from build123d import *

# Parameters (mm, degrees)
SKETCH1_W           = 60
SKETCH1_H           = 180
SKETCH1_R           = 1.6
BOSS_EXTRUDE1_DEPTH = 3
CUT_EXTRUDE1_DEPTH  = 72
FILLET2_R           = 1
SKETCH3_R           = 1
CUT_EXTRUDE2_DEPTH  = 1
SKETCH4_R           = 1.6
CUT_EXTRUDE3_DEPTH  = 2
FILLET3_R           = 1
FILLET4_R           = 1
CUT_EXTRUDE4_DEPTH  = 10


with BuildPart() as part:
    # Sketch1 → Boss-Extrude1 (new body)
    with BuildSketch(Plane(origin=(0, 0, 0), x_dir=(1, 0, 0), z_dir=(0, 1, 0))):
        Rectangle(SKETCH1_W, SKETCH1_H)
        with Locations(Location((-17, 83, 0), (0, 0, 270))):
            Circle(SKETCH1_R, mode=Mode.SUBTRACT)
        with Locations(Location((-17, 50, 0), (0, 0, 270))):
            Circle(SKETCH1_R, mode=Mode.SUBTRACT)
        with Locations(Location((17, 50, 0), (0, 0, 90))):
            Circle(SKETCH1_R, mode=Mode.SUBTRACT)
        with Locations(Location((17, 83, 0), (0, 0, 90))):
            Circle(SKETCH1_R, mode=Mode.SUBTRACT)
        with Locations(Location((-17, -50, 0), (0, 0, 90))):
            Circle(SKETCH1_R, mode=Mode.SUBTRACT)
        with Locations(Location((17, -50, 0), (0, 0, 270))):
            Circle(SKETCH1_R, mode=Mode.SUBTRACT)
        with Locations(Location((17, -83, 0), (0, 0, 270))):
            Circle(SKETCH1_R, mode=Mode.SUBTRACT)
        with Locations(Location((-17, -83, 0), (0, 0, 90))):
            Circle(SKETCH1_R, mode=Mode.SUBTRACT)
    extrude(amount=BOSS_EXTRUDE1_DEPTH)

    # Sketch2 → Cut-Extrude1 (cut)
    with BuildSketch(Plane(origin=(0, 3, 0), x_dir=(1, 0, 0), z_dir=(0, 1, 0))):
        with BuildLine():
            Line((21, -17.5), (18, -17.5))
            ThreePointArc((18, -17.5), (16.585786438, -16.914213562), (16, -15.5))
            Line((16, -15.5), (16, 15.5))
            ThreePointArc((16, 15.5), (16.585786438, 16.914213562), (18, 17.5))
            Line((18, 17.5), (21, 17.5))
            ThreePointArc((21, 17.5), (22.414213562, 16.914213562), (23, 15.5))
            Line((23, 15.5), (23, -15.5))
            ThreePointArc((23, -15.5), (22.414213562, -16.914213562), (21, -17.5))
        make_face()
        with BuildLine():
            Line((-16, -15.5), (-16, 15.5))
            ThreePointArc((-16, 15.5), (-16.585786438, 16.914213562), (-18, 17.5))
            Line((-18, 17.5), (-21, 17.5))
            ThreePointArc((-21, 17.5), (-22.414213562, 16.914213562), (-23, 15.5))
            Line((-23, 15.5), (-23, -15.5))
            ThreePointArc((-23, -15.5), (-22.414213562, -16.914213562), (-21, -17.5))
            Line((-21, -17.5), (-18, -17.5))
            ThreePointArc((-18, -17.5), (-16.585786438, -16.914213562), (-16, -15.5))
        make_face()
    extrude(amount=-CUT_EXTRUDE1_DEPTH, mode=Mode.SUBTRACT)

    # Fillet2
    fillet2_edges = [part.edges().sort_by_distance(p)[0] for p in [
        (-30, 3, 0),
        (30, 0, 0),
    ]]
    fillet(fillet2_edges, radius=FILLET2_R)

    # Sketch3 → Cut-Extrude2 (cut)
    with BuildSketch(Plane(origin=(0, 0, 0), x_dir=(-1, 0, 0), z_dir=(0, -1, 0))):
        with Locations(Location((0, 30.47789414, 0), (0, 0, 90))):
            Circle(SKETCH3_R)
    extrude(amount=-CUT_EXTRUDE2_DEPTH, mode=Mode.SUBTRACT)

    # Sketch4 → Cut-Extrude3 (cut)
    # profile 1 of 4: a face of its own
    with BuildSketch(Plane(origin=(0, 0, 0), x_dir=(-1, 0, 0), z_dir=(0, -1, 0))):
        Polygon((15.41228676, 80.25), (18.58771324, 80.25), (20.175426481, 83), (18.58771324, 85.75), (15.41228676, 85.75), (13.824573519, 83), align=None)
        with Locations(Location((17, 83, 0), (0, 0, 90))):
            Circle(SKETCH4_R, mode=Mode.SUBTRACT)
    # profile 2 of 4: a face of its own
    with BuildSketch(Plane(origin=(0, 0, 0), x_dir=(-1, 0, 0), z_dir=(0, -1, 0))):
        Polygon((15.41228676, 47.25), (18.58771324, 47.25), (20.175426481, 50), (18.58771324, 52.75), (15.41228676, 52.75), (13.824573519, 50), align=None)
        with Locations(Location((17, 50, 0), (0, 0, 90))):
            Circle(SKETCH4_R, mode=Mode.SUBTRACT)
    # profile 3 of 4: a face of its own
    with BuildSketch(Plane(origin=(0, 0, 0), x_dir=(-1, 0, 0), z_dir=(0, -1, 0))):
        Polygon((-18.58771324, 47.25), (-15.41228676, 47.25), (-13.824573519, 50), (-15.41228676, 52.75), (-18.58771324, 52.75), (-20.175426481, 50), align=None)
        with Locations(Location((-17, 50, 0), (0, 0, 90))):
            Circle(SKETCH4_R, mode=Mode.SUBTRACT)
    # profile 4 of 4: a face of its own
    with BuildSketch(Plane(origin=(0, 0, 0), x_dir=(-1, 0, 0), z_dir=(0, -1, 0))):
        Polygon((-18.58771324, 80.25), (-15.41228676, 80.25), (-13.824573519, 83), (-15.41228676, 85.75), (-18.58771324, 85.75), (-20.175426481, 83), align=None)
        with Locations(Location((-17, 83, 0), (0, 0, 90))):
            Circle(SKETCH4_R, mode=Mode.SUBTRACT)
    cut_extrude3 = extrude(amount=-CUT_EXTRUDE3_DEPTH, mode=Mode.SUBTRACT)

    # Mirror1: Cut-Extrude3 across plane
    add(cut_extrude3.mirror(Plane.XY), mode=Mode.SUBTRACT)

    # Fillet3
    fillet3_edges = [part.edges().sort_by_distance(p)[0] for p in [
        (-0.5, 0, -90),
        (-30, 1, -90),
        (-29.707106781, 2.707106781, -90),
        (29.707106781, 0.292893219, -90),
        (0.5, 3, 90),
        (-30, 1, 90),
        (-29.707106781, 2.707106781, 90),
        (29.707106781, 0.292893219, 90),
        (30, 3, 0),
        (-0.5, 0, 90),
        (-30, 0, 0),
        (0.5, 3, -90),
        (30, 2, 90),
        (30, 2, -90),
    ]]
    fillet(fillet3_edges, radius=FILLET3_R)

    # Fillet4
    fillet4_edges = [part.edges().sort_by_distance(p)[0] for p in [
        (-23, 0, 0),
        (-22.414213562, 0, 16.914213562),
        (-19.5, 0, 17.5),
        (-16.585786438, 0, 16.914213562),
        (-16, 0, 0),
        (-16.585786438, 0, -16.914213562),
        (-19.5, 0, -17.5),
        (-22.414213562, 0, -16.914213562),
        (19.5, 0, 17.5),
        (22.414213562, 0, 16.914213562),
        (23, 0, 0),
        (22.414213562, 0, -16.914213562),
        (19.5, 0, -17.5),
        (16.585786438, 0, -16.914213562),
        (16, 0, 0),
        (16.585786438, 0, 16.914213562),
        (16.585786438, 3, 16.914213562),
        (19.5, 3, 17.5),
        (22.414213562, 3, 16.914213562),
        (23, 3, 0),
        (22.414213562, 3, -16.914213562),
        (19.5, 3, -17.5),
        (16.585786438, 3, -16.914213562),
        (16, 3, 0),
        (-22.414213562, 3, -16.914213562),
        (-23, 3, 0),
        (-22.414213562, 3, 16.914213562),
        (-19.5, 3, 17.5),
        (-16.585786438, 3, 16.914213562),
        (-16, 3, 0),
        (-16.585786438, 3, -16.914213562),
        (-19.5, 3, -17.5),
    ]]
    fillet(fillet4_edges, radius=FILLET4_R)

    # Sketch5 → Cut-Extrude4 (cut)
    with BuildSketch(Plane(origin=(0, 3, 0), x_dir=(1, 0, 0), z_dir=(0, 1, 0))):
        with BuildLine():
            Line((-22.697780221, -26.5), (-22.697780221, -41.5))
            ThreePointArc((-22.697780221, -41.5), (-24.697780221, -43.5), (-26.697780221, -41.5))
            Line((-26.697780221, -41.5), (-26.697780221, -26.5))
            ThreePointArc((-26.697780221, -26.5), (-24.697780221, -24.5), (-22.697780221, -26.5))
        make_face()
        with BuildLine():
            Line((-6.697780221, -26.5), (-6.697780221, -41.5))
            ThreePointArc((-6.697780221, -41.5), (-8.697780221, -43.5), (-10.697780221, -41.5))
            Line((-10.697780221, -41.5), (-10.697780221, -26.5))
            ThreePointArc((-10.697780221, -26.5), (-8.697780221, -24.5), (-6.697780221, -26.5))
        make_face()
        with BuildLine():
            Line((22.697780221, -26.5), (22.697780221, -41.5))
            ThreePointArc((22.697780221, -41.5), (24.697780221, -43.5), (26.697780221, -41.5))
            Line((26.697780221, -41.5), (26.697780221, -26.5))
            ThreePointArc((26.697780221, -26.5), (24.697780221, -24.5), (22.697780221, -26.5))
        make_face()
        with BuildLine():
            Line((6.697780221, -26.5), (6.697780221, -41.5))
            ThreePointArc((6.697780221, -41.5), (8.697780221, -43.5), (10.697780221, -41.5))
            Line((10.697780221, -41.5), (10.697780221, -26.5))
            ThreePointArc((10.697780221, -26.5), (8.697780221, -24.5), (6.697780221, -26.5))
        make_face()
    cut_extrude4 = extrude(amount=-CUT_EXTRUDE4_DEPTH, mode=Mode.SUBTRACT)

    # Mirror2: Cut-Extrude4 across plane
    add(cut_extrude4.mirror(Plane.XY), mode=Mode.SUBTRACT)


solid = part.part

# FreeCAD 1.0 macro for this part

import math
import FreeCAD as App
import Part
import Sketcher

V = App.Vector
Q = App.Units.Quantity


def edges_at(feature, points):
    """Names of the edges that pass closest to the given points."""
    edges = feature.Shape.Edges
    near = lambda p: min(range(len(edges)), key=lambda i: edges[i].distToShape(Part.Vertex(*p))[0])
    return sorted({f"Edge{near(p) + 1}" for p in points})

doc = App.newDocument("Part")
params = doc.addObject("Spreadsheet::Sheet", "Params")
for row, (alias, value) in enumerate([
    ("sketch1_diameter", "3.2 mm"),
    ("sketch1_width", "60 mm"),
    ("sketch1_height", "180 mm"),
    ("pad1_length", "3 mm"),
    ("sketch2_radius", "2 mm"),
    ("sketch2_width", "3 mm"),
    ("sketch2_height", "31 mm"),
    ("pocket1_length", "72 mm"),
    ("fillet_radius", "1 mm"),
    ("sketch3_diameter", "2 mm"),
    ("pocket2_length", "1 mm"),
    ("sketch4_diameter", "3.2 mm"),
    ("pocket3_length", "2 mm"),
    ("fillet2_radius", "1 mm"),
    ("fillet3_radius", "1 mm"),
    ("sketch5_radius", "2 mm"),
    ("sketch5_height", "15 mm"),
    ("pocket4_length", "10 mm"),
], start=1):
    params.set(f"A{row}", alias)
    params.set(f"B{row}", "=" + value)
    params.setAlias(f"B{row}", alias)

body = doc.addObject("PartDesign::Body", "Body")

sketch1 = body.newObject("Sketcher::SketchObject", "Sketch")
sketch1.AttachmentSupport = (doc.getObject("XZ_Plane"), [""])
sketch1.MapMode = "FlatFace"
sketch1.addGeometry(Part.LineSegment(V(-30, -90, 0), V(-30, 90, 0)), False)
sketch1.addGeometry(Part.LineSegment(V(-30, 90, 0), V(30, 90, 0)), False)
sketch1.addGeometry(Part.LineSegment(V(30, 90, 0), V(30, -90, 0)), False)
sketch1.addGeometry(Part.LineSegment(V(30, -90, 0), V(-30, -90, 0)), False)
sketch1.addGeometry(Part.Circle(V(-17, 83, 0), V(0, 0, 1), 1.6), False)
sketch1.addGeometry(Part.Circle(V(-17, 50, 0), V(0, 0, 1), 1.6), False)
sketch1.addGeometry(Part.Circle(V(17, 83, 0), V(0, 0, 1), 1.6), False)
sketch1.addGeometry(Part.Circle(V(17, 50, 0), V(0, 0, 1), 1.6), False)
sketch1.addGeometry(Part.Circle(V(-17, -50, 0), V(0, 0, 1), 1.6), False)
sketch1.addGeometry(Part.Circle(V(-17, -83, 0), V(0, 0, 1), 1.6), False)
sketch1.addGeometry(Part.Circle(V(17, -50, 0), V(0, 0, 1), 1.6), False)
sketch1.addGeometry(Part.Circle(V(17, -83, 0), V(0, 0, 1), 1.6), False)
sketch1.addConstraint(Sketcher.Constraint("Coincident", 0, 2, 1, 1))
sketch1.addConstraint(Sketcher.Constraint("Coincident", 1, 2, 2, 1))
sketch1.addConstraint(Sketcher.Constraint("Coincident", 2, 2, 3, 1))
sketch1.addConstraint(Sketcher.Constraint("Coincident", 3, 2, 0, 1))
sketch1.addConstraint(Sketcher.Constraint("Vertical", 0))
sketch1.addConstraint(Sketcher.Constraint("Horizontal", 1))
sketch1.addConstraint(Sketcher.Constraint("Vertical", 2))
sketch1.addConstraint(Sketcher.Constraint("Horizontal", 3))
sketch1.addConstraint(Sketcher.Constraint("Equal", 4, 5))
sketch1.addConstraint(Sketcher.Constraint("Equal", 5, 6))
sketch1.addConstraint(Sketcher.Constraint("Equal", 6, 7))
sketch1.addConstraint(Sketcher.Constraint("Equal", 7, 8))
sketch1.addConstraint(Sketcher.Constraint("Equal", 8, 9))
sketch1.addConstraint(Sketcher.Constraint("Equal", 9, 10))
sketch1.addConstraint(Sketcher.Constraint("Equal", 10, 11))
sketch1.addConstraint(Sketcher.Constraint("Symmetric", 7, 3, 8, 3, -1, 1))
sketch1.addConstraint(Sketcher.Constraint("Symmetric", 6, 3, 9, 3, -1, 1))
sketch1.addConstraint(Sketcher.Constraint("Symmetric", 5, 3, 10, 3, -1, 1))
sketch1.addConstraint(Sketcher.Constraint("Symmetric", 4, 3, 11, 3, -1, 1))
sketch1.addConstraint(Sketcher.Constraint("Symmetric", 0, 2, 2, 2, -1, 1))
sketch1.addConstraint(Sketcher.Constraint("Symmetric", 4, 3, 6, 3, -2))
sketch1.addConstraint(Sketcher.Constraint("Symmetric", 5, 3, 7, 3, -2))
sketch1.addConstraint(Sketcher.Constraint("Vertical", 4, 3, 5, 3))
sketch1.addConstraint(Sketcher.Constraint("Diameter", 4, Q("3.2 mm")))
sketch1.addConstraint(Sketcher.Constraint("DistanceX", 1, 1, 1, 2, Q("60 mm")))
sketch1.addConstraint(Sketcher.Constraint("DistanceY", 0, 1, 0, 2, Q("180 mm")))
sketch1.addConstraint(Sketcher.Constraint("DistanceX", 4, 3, -1, 1, Q("17 mm")))
sketch1.addConstraint(Sketcher.Constraint("DistanceY", -1, 1, 4, 3, Q("83 mm")))
sketch1.addConstraint(Sketcher.Constraint("DistanceY", -1, 1, 5, 3, Q("50 mm")))
sketch1.setExpression("Constraints[23]", "Params.sketch1_diameter")
sketch1.setExpression("Constraints[24]", "Params.sketch1_width")
sketch1.setExpression("Constraints[25]", "Params.sketch1_height")
pad1 = body.newObject("PartDesign::Pad", "Pad")
pad1.Profile = sketch1
pad1.setExpression("Length", "Params.pad1_length")
pad1.Reversed = True

sketch2 = body.newObject("Sketcher::SketchObject", "Sketch001")
sketch2.AttachmentSupport = (doc.getObject("XZ_Plane"), [""])
sketch2.MapMode = "FlatFace"
sketch2.AttachmentOffset = App.Placement(V(0, 0, -3), App.Rotation())
sketch2.addGeometry(Part.LineSegment(V(18, 17.5, 0), V(21, 17.5, 0)), False)
sketch2.addGeometry(Part.ArcOfCircle(Part.Circle(V(21, 15.5, 0), V(0, 0, 1), 2), math.radians(0), math.radians(90)), False)
sketch2.addGeometry(Part.LineSegment(V(23, 15.5, 0), V(23, -15.5, 0)), False)
sketch2.addGeometry(Part.ArcOfCircle(Part.Circle(V(21, -15.5, 0), V(0, 0, 1), 2), math.radians(-90), math.radians(0)), False)
sketch2.addGeometry(Part.LineSegment(V(21, -17.5, 0), V(18, -17.5, 0)), False)
sketch2.addGeometry(Part.ArcOfCircle(Part.Circle(V(18, -15.5, 0), V(0, 0, 1), 2), math.radians(-180), math.radians(-90)), False)
sketch2.addGeometry(Part.LineSegment(V(16, -15.5, 0), V(16, 15.5, 0)), False)
sketch2.addGeometry(Part.ArcOfCircle(Part.Circle(V(18, 15.5, 0), V(0, 0, 1), 2), math.radians(90), math.radians(180)), False)
sketch2.addGeometry(Part.LineSegment(V(-16, 15.5, 0), V(-16, -15.5, 0)), False)
sketch2.addGeometry(Part.ArcOfCircle(Part.Circle(V(-18, -15.5, 0), V(0, 0, 1), 2), math.radians(-90), math.radians(0)), False)
sketch2.addGeometry(Part.LineSegment(V(-18, -17.5, 0), V(-21, -17.5, 0)), False)
sketch2.addGeometry(Part.ArcOfCircle(Part.Circle(V(-21, -15.5, 0), V(0, 0, 1), 2), math.radians(-180), math.radians(-90)), False)
sketch2.addGeometry(Part.LineSegment(V(-23, -15.5, 0), V(-23, 15.5, 0)), False)
sketch2.addGeometry(Part.ArcOfCircle(Part.Circle(V(-21, 15.5, 0), V(0, 0, 1), 2), math.radians(90), math.radians(180)), False)
sketch2.addGeometry(Part.LineSegment(V(-21, 17.5, 0), V(-18, 17.5, 0)), False)
sketch2.addGeometry(Part.ArcOfCircle(Part.Circle(V(-18, 15.5, 0), V(0, 0, 1), 2), math.radians(0), math.radians(90)), False)
sketch2.addConstraint(Sketcher.Constraint("Tangent", 0, 2, 1, 2))
sketch2.addConstraint(Sketcher.Constraint("Tangent", 1, 1, 2, 1))
sketch2.addConstraint(Sketcher.Constraint("Tangent", 2, 2, 3, 2))
sketch2.addConstraint(Sketcher.Constraint("Tangent", 3, 1, 4, 1))
sketch2.addConstraint(Sketcher.Constraint("Tangent", 4, 2, 5, 2))
sketch2.addConstraint(Sketcher.Constraint("Tangent", 5, 1, 6, 1))
sketch2.addConstraint(Sketcher.Constraint("Tangent", 6, 2, 7, 2))
sketch2.addConstraint(Sketcher.Constraint("Tangent", 7, 1, 0, 1))
sketch2.addConstraint(Sketcher.Constraint("Tangent", 8, 2, 9, 2))
sketch2.addConstraint(Sketcher.Constraint("Tangent", 9, 1, 10, 1))
sketch2.addConstraint(Sketcher.Constraint("Tangent", 10, 2, 11, 2))
sketch2.addConstraint(Sketcher.Constraint("Tangent", 11, 1, 12, 1))
sketch2.addConstraint(Sketcher.Constraint("Tangent", 12, 2, 13, 2))
sketch2.addConstraint(Sketcher.Constraint("Tangent", 13, 1, 14, 1))
sketch2.addConstraint(Sketcher.Constraint("Tangent", 14, 2, 15, 2))
sketch2.addConstraint(Sketcher.Constraint("Tangent", 15, 1, 8, 1))
sketch2.addConstraint(Sketcher.Constraint("Horizontal", 0))
sketch2.addConstraint(Sketcher.Constraint("Vertical", 2))
sketch2.addConstraint(Sketcher.Constraint("Horizontal", 4))
sketch2.addConstraint(Sketcher.Constraint("Vertical", 6))
sketch2.addConstraint(Sketcher.Constraint("Vertical", 8))
sketch2.addConstraint(Sketcher.Constraint("Horizontal", 10))
sketch2.addConstraint(Sketcher.Constraint("Vertical", 12))
sketch2.addConstraint(Sketcher.Constraint("Horizontal", 14))
sketch2.addConstraint(Sketcher.Constraint("Equal", 1, 3))
sketch2.addConstraint(Sketcher.Constraint("Equal", 3, 5))
sketch2.addConstraint(Sketcher.Constraint("Equal", 5, 7))
sketch2.addConstraint(Sketcher.Constraint("Equal", 7, 9))
sketch2.addConstraint(Sketcher.Constraint("Equal", 9, 11))
sketch2.addConstraint(Sketcher.Constraint("Equal", 11, 13))
sketch2.addConstraint(Sketcher.Constraint("Equal", 13, 15))
sketch2.addConstraint(Sketcher.Constraint("Symmetric", 7, 3, 9, 3, -1, 1))
sketch2.addConstraint(Sketcher.Constraint("Symmetric", 3, 3, 13, 3, -1, 1))
sketch2.addConstraint(Sketcher.Constraint("Horizontal", 5, 3, 9, 3))
sketch2.addConstraint(Sketcher.Constraint("Radius", 1, Q("2 mm")))
sketch2.addConstraint(Sketcher.Constraint("DistanceX", 0, 1, 0, 2, Q("3 mm")))
sketch2.addConstraint(Sketcher.Constraint("DistanceY", 2, 2, 2, 1, Q("31 mm")))
sketch2.addConstraint(Sketcher.Constraint("DistanceX", -1, 1, 1, 3, Q("21 mm")))
sketch2.setExpression("Constraints[34]", "Params.sketch2_radius")
sketch2.setExpression("Constraints[35]", "Params.sketch2_width")
sketch2.setExpression("Constraints[36]", "Params.sketch2_height")
pocket1 = body.newObject("PartDesign::Pocket", "Pocket")
pocket1.Profile = sketch2
pocket1.setExpression("Length", "Params.pocket1_length")
pocket1.Reversed = True
doc.recompute()

fillet = body.newObject("PartDesign::Fillet", "Fillet")
fillet.Base = (pocket1, edges_at(pocket1, [(-30, 3, 0), (30, 0, 0)]))
fillet.setExpression("Radius", "Params.fillet_radius")

sketch3 = body.newObject("Sketcher::SketchObject", "Sketch002")
sketch3.AttachmentSupport = (doc.getObject("XZ_Plane"), [""])
sketch3.MapMode = "FlatFace"
sketch3.addGeometry(Part.Circle(V(0, -30.477894, 0), V(0, 0, 1), 1), False)
sketch3.addConstraint(Sketcher.Constraint("PointOnObject", 0, 3, -2))
sketch3.addConstraint(Sketcher.Constraint("Diameter", 0, Q("2 mm")))
sketch3.addConstraint(Sketcher.Constraint("DistanceY", 0, 3, -1, 1, Q("30.477894 mm")))
sketch3.setExpression("Constraints[1]", "Params.sketch3_diameter")
pocket2 = body.newObject("PartDesign::Pocket", "Pocket001")
pocket2.Profile = sketch3
pocket2.setExpression("Length", "Params.pocket2_length")

sketch4 = body.newObject("Sketcher::SketchObject", "Sketch003")
sketch4.AttachmentSupport = (doc.getObject("XZ_Plane"), [""])
sketch4.MapMode = "FlatFace"
sketch4.addGeometry(Part.LineSegment(V(-15.412287, -80.25, 0), V(-18.587713, -80.25, 0)), False)
sketch4.addGeometry(Part.LineSegment(V(-18.587713, -80.25, 0), V(-20.175426, -83, 0)), False)
sketch4.addGeometry(Part.LineSegment(V(-20.175426, -83, 0), V(-18.587713, -85.75, 0)), False)
sketch4.addGeometry(Part.LineSegment(V(-18.587713, -85.75, 0), V(-15.412287, -85.75, 0)), False)
sketch4.addGeometry(Part.LineSegment(V(-15.412287, -85.75, 0), V(-13.824574, -83, 0)), False)
sketch4.addGeometry(Part.LineSegment(V(-13.824574, -83, 0), V(-15.412287, -80.25, 0)), False)
sketch4.addGeometry(Part.Circle(V(-17, -83, 0), V(0, 0, 1), 1.6), False)
sketch4.addGeometry(Part.LineSegment(V(-15.412287, -47.25, 0), V(-18.587713, -47.25, 0)), False)
sketch4.addGeometry(Part.LineSegment(V(-18.587713, -47.25, 0), V(-20.175426, -50, 0)), False)
sketch4.addGeometry(Part.LineSegment(V(-20.175426, -50, 0), V(-18.587713, -52.75, 0)), False)
sketch4.addGeometry(Part.LineSegment(V(-18.587713, -52.75, 0), V(-15.412287, -52.75, 0)), False)
sketch4.addGeometry(Part.LineSegment(V(-15.412287, -52.75, 0), V(-13.824574, -50, 0)), False)
sketch4.addGeometry(Part.LineSegment(V(-13.824574, -50, 0), V(-15.412287, -47.25, 0)), False)
sketch4.addGeometry(Part.Circle(V(-17, -50, 0), V(0, 0, 1), 1.6), False)
sketch4.addGeometry(Part.LineSegment(V(18.587713, -47.25, 0), V(15.412287, -47.25, 0)), False)
sketch4.addGeometry(Part.LineSegment(V(15.412287, -47.25, 0), V(13.824574, -50, 0)), False)
sketch4.addGeometry(Part.LineSegment(V(13.824574, -50, 0), V(15.412287, -52.75, 0)), False)
sketch4.addGeometry(Part.LineSegment(V(15.412287, -52.75, 0), V(18.587713, -52.75, 0)), False)
sketch4.addGeometry(Part.LineSegment(V(18.587713, -52.75, 0), V(20.175426, -50, 0)), False)
sketch4.addGeometry(Part.LineSegment(V(20.175426, -50, 0), V(18.587713, -47.25, 0)), False)
sketch4.addGeometry(Part.Circle(V(17, -50, 0), V(0, 0, 1), 1.6), False)
sketch4.addGeometry(Part.LineSegment(V(18.587713, -80.25, 0), V(15.412287, -80.25, 0)), False)
sketch4.addGeometry(Part.LineSegment(V(15.412287, -80.25, 0), V(13.824574, -83, 0)), False)
sketch4.addGeometry(Part.LineSegment(V(13.824574, -83, 0), V(15.412287, -85.75, 0)), False)
sketch4.addGeometry(Part.LineSegment(V(15.412287, -85.75, 0), V(18.587713, -85.75, 0)), False)
sketch4.addGeometry(Part.LineSegment(V(18.587713, -85.75, 0), V(20.175426, -83, 0)), False)
sketch4.addGeometry(Part.LineSegment(V(20.175426, -83, 0), V(18.587713, -80.25, 0)), False)
sketch4.addGeometry(Part.Circle(V(17, -83, 0), V(0, 0, 1), 1.6), False)
sketch4.addConstraint(Sketcher.Constraint("Coincident", 0, 2, 1, 1))
sketch4.addConstraint(Sketcher.Constraint("Coincident", 1, 2, 2, 1))
sketch4.addConstraint(Sketcher.Constraint("Coincident", 2, 2, 3, 1))
sketch4.addConstraint(Sketcher.Constraint("Coincident", 3, 2, 4, 1))
sketch4.addConstraint(Sketcher.Constraint("Coincident", 4, 2, 5, 1))
sketch4.addConstraint(Sketcher.Constraint("Coincident", 5, 2, 0, 1))
sketch4.addConstraint(Sketcher.Constraint("Coincident", 7, 2, 8, 1))
sketch4.addConstraint(Sketcher.Constraint("Coincident", 8, 2, 9, 1))
sketch4.addConstraint(Sketcher.Constraint("Coincident", 9, 2, 10, 1))
sketch4.addConstraint(Sketcher.Constraint("Coincident", 10, 2, 11, 1))
sketch4.addConstraint(Sketcher.Constraint("Coincident", 11, 2, 12, 1))
sketch4.addConstraint(Sketcher.Constraint("Coincident", 12, 2, 7, 1))
sketch4.addConstraint(Sketcher.Constraint("Coincident", 14, 2, 15, 1))
sketch4.addConstraint(Sketcher.Constraint("Coincident", 15, 2, 16, 1))
sketch4.addConstraint(Sketcher.Constraint("Coincident", 16, 2, 17, 1))
sketch4.addConstraint(Sketcher.Constraint("Coincident", 17, 2, 18, 1))
sketch4.addConstraint(Sketcher.Constraint("Coincident", 18, 2, 19, 1))
sketch4.addConstraint(Sketcher.Constraint("Coincident", 19, 2, 14, 1))
sketch4.addConstraint(Sketcher.Constraint("Coincident", 21, 2, 22, 1))
sketch4.addConstraint(Sketcher.Constraint("Coincident", 22, 2, 23, 1))
sketch4.addConstraint(Sketcher.Constraint("Coincident", 23, 2, 24, 1))
sketch4.addConstraint(Sketcher.Constraint("Coincident", 24, 2, 25, 1))
sketch4.addConstraint(Sketcher.Constraint("Coincident", 25, 2, 26, 1))
sketch4.addConstraint(Sketcher.Constraint("Coincident", 26, 2, 21, 1))
sketch4.addConstraint(Sketcher.Constraint("Horizontal", 0))
sketch4.addConstraint(Sketcher.Constraint("Horizontal", 3))
sketch4.addConstraint(Sketcher.Constraint("Horizontal", 7))
sketch4.addConstraint(Sketcher.Constraint("Horizontal", 10))
sketch4.addConstraint(Sketcher.Constraint("Horizontal", 14))
sketch4.addConstraint(Sketcher.Constraint("Horizontal", 17))
sketch4.addConstraint(Sketcher.Constraint("Horizontal", 21))
sketch4.addConstraint(Sketcher.Constraint("Horizontal", 24))
sketch4.addConstraint(Sketcher.Constraint("Equal", 6, 13))
sketch4.addConstraint(Sketcher.Constraint("Equal", 13, 20))
sketch4.addConstraint(Sketcher.Constraint("Equal", 20, 27))
sketch4.addConstraint(Sketcher.Constraint("Symmetric", 13, 3, 20, 3, -2))
sketch4.addConstraint(Sketcher.Constraint("Symmetric", 6, 3, 27, 3, -2))
sketch4.addConstraint(Sketcher.Constraint("Symmetric", 12, 2, 14, 2, -2))
sketch4.addConstraint(Sketcher.Constraint("Symmetric", 11, 2, 15, 2, -2))
sketch4.addConstraint(Sketcher.Constraint("Symmetric", 10, 2, 16, 2, -2))
sketch4.addConstraint(Sketcher.Constraint("Symmetric", 8, 2, 18, 2, -2))
sketch4.addConstraint(Sketcher.Constraint("Symmetric", 5, 2, 21, 2, -2))
sketch4.addConstraint(Sketcher.Constraint("Symmetric", 4, 2, 22, 2, -2))
sketch4.addConstraint(Sketcher.Constraint("Symmetric", 3, 2, 23, 2, -2))
sketch4.addConstraint(Sketcher.Constraint("Symmetric", 1, 2, 25, 2, -2))
sketch4.addConstraint(Sketcher.Constraint("Parallel", 1, 4))
sketch4.addConstraint(Sketcher.Constraint("Parallel", 2, 5))
sketch4.addConstraint(Sketcher.Constraint("Parallel", 4, 8))
sketch4.addConstraint(Sketcher.Constraint("Parallel", 5, 9))
sketch4.addConstraint(Sketcher.Constraint("Parallel", 8, 11))
sketch4.addConstraint(Sketcher.Constraint("Parallel", 9, 12))
sketch4.addConstraint(Sketcher.Constraint("Parallel", 11, 15))
sketch4.addConstraint(Sketcher.Constraint("Parallel", 15, 18))
sketch4.addConstraint(Sketcher.Constraint("Parallel", 16, 19))
sketch4.addConstraint(Sketcher.Constraint("Parallel", 22, 25))
sketch4.addConstraint(Sketcher.Constraint("Parallel", 23, 26))
sketch4.addConstraint(Sketcher.Constraint("Horizontal", 27, 3, 1, 2))
sketch4.addConstraint(Sketcher.Constraint("Horizontal", 1, 2, 4, 2))
sketch4.addConstraint(Sketcher.Constraint("Horizontal", 20, 3, 8, 2))
sketch4.addConstraint(Sketcher.Constraint("Horizontal", 8, 2, 11, 2))
sketch4.addConstraint(Sketcher.Constraint("Vertical", 6, 3, 13, 3))
sketch4.addConstraint(Sketcher.Constraint("Vertical", 0, 2, 2, 2))
sketch4.addConstraint(Sketcher.Constraint("Vertical", 2, 2, 7, 2))
sketch4.addConstraint(Sketcher.Constraint("Vertical", 1, 2, 8, 2))
sketch4.addConstraint(Sketcher.Constraint("Vertical", 7, 2, 9, 2))
sketch4.addConstraint(Sketcher.Constraint("Vertical", 5, 2, 10, 2))
sketch4.addConstraint(Sketcher.Constraint("Diameter", 6, Q("3.2 mm")))
sketch4.addConstraint(Sketcher.Constraint("Angle", 1, Q("-120 deg")))
sketch4.addConstraint(Sketcher.Constraint("DistanceX", 6, 3, -1, 1, Q("17 mm")))
sketch4.addConstraint(Sketcher.Constraint("DistanceY", 6, 3, -1, 1, Q("83 mm")))
sketch4.addConstraint(Sketcher.Constraint("DistanceY", 13, 3, -1, 1, Q("50 mm")))
sketch4.addConstraint(Sketcher.Constraint("DistanceY", 2, 2, 0, 2, Q("5.5 mm")))
sketch4.addConstraint(Sketcher.Constraint("DistanceX", 0, 2, 0, 1, Q("3.175426 mm")))
sketch4.addConstraint(Sketcher.Constraint("DistanceX", 11, 2, 14, 2, Q("29.23686 mm")))
sketch4.setExpression("Constraints[66]", "Params.sketch4_diameter")
pocket3 = body.newObject("PartDesign::Pocket", "Pocket002")
pocket3.Profile = sketch4
pocket3.setExpression("Length", "Params.pocket3_length")
doc.recompute()

mirrored = body.newObject("PartDesign::Mirrored", "Mirrored")
mirrored.Originals = [pocket3]
mirrored.MirrorPlane = (doc.getObject("XY_Plane"), [""])
body.Tip = mirrored
doc.recompute()

fillet2 = body.newObject("PartDesign::Fillet", "Fillet001")
fillet2.Base = (mirrored, edges_at(mirrored, [
    (-0.5, 0, -90),
    (-30, 1, -90),
    (-29.707, 2.707, -90),
    (29.707, 0.293, -90),
    (0.5, 3, 90),
    (-30, 1, 90),
    (-29.707, 2.707, 90),
    (29.707, 0.293, 90),
    (30, 3, 0),
    (-0.5, 0, 90),
    (-30, 0, 0),
    (0.5, 3, -90),
    (30, 2, 90),
    (30, 2, -90),
]))
fillet2.setExpression("Radius", "Params.fillet2_radius")
doc.recompute()

fillet3 = body.newObject("PartDesign::Fillet", "Fillet002")
fillet3.Base = (fillet2, edges_at(fillet2, [
    (-23, 0, 0),
    (-22.414, 0, 16.914),
    (-19.5, 0, 17.5),
    (-16.586, 0, 16.914),
    (-16, 0, 0),
    (-16.586, 0, -16.914),
    (-19.5, 0, -17.5),
    (-22.414, 0, -16.914),
    (19.5, 0, 17.5),
    (22.414, 0, 16.914),
    (23, 0, 0),
    (22.414, 0, -16.914),
    (19.5, 0, -17.5),
    (16.586, 0, -16.914),
    (16, 0, 0),
    (16.586, 0, 16.914),
    (16.586, 3, 16.914),
    (19.5, 3, 17.5),
    (22.414, 3, 16.914),
    (23, 3, 0),
    (22.414, 3, -16.914),
    (19.5, 3, -17.5),
    (16.586, 3, -16.914),
    (16, 3, 0),
    (-22.414, 3, -16.914),
    (-23, 3, 0),
    (-22.414, 3, 16.914),
    (-19.5, 3, 17.5),
    (-16.586, 3, 16.914),
    (-16, 3, 0),
    (-16.586, 3, -16.914),
    (-19.5, 3, -17.5),
]))
fillet3.setExpression("Radius", "Params.fillet3_radius")

sketch5 = body.newObject("Sketcher::SketchObject", "Sketch004")
sketch5.AttachmentSupport = (doc.getObject("XZ_Plane"), [""])
sketch5.MapMode = "FlatFace"
sketch5.AttachmentOffset = App.Placement(V(0, 0, -3), App.Rotation())
sketch5.addGeometry(Part.LineSegment(V(-22.69778, 41.5, 0), V(-22.69778, 26.5, 0)), False)
sketch5.addGeometry(Part.ArcOfCircle(Part.Circle(V(-24.69778, 26.5, 0), V(0, 0, 1), 2), math.radians(180), math.radians(360)), False)
sketch5.addGeometry(Part.LineSegment(V(-26.69778, 26.5, 0), V(-26.69778, 41.5, 0)), False)
sketch5.addGeometry(Part.ArcOfCircle(Part.Circle(V(-24.69778, 41.5, 0), V(0, 0, 1), 2), math.radians(0), math.radians(180)), False)
sketch5.addGeometry(Part.LineSegment(V(-6.69778, 41.5, 0), V(-6.69778, 26.5, 0)), False)
sketch5.addGeometry(Part.ArcOfCircle(Part.Circle(V(-8.69778, 26.5, 0), V(0, 0, 1), 2), math.radians(180), math.radians(360)), False)
sketch5.addGeometry(Part.LineSegment(V(-10.69778, 26.5, 0), V(-10.69778, 41.5, 0)), False)
sketch5.addGeometry(Part.ArcOfCircle(Part.Circle(V(-8.69778, 41.5, 0), V(0, 0, 1), 2), math.radians(0), math.radians(180)), False)
sketch5.addGeometry(Part.LineSegment(V(22.69778, 26.5, 0), V(22.69778, 41.5, 0)), False)
sketch5.addGeometry(Part.ArcOfCircle(Part.Circle(V(24.69778, 41.5, 0), V(0, 0, 1), 2), math.radians(0), math.radians(180)), False)
sketch5.addGeometry(Part.LineSegment(V(26.69778, 41.5, 0), V(26.69778, 26.5, 0)), False)
sketch5.addGeometry(Part.ArcOfCircle(Part.Circle(V(24.69778, 26.5, 0), V(0, 0, 1), 2), math.radians(180), math.radians(360)), False)
sketch5.addGeometry(Part.LineSegment(V(6.69778, 26.5, 0), V(6.69778, 41.5, 0)), False)
sketch5.addGeometry(Part.ArcOfCircle(Part.Circle(V(8.69778, 41.5, 0), V(0, 0, 1), 2), math.radians(0), math.radians(180)), False)
sketch5.addGeometry(Part.LineSegment(V(10.69778, 41.5, 0), V(10.69778, 26.5, 0)), False)
sketch5.addGeometry(Part.ArcOfCircle(Part.Circle(V(8.69778, 26.5, 0), V(0, 0, 1), 2), math.radians(180), math.radians(360)), False)
sketch5.addConstraint(Sketcher.Constraint("Tangent", 0, 2, 1, 2))
sketch5.addConstraint(Sketcher.Constraint("Tangent", 1, 1, 2, 1))
sketch5.addConstraint(Sketcher.Constraint("Tangent", 2, 2, 3, 2))
sketch5.addConstraint(Sketcher.Constraint("Tangent", 3, 1, 0, 1))
sketch5.addConstraint(Sketcher.Constraint("Tangent", 4, 2, 5, 2))
sketch5.addConstraint(Sketcher.Constraint("Tangent", 5, 1, 6, 1))
sketch5.addConstraint(Sketcher.Constraint("Tangent", 6, 2, 7, 2))
sketch5.addConstraint(Sketcher.Constraint("Tangent", 7, 1, 4, 1))
sketch5.addConstraint(Sketcher.Constraint("Tangent", 8, 2, 9, 2))
sketch5.addConstraint(Sketcher.Constraint("Tangent", 9, 1, 10, 1))
sketch5.addConstraint(Sketcher.Constraint("Tangent", 10, 2, 11, 2))
sketch5.addConstraint(Sketcher.Constraint("Tangent", 11, 1, 8, 1))
sketch5.addConstraint(Sketcher.Constraint("Tangent", 12, 2, 13, 2))
sketch5.addConstraint(Sketcher.Constraint("Tangent", 13, 1, 14, 1))
sketch5.addConstraint(Sketcher.Constraint("Tangent", 14, 2, 15, 2))
sketch5.addConstraint(Sketcher.Constraint("Tangent", 15, 1, 12, 1))
sketch5.addConstraint(Sketcher.Constraint("Vertical", 0))
sketch5.addConstraint(Sketcher.Constraint("Vertical", 2))
sketch5.addConstraint(Sketcher.Constraint("Vertical", 4))
sketch5.addConstraint(Sketcher.Constraint("Vertical", 6))
sketch5.addConstraint(Sketcher.Constraint("Vertical", 8))
sketch5.addConstraint(Sketcher.Constraint("Vertical", 10))
sketch5.addConstraint(Sketcher.Constraint("Vertical", 12))
sketch5.addConstraint(Sketcher.Constraint("Vertical", 14))
sketch5.addConstraint(Sketcher.Constraint("Equal", 3, 5))
sketch5.addConstraint(Sketcher.Constraint("Equal", 7, 9))
sketch5.addConstraint(Sketcher.Constraint("Equal", 11, 13))
sketch5.addConstraint(Sketcher.Constraint("Symmetric", 3, 3, 9, 3, -2))
sketch5.addConstraint(Sketcher.Constraint("Symmetric", 7, 3, 13, 3, -2))
sketch5.addConstraint(Sketcher.Constraint("Horizontal", 1, 3, 5, 3))
sketch5.addConstraint(Sketcher.Constraint("Horizontal", 3, 3, 7, 3))
sketch5.addConstraint(Sketcher.Constraint("Horizontal", 5, 3, 11, 3))
sketch5.addConstraint(Sketcher.Constraint("Horizontal", 11, 3, 15, 3))
sketch5.addConstraint(Sketcher.Constraint("Radius", 1, Q("2 mm")))
sketch5.addConstraint(Sketcher.Constraint("DistanceY", 0, 2, 0, 1, Q("15 mm")))
sketch5.addConstraint(Sketcher.Constraint("DistanceX", 1, 3, 5, 3, Q("16 mm")))
sketch5.addConstraint(Sketcher.Constraint("DistanceY", -1, 1, 1, 3, Q("26.5 mm")))
sketch5.addConstraint(Sketcher.Constraint("DistanceX", 1, 3, -1, 1, Q("24.69778 mm")))
sketch5.setExpression("Constraints[33]", "Params.sketch5_radius")
sketch5.setExpression("Constraints[34]", "Params.sketch5_height")
pocket4 = body.newObject("PartDesign::Pocket", "Pocket003")
pocket4.Profile = sketch5
pocket4.setExpression("Length", "Params.pocket4_length")
pocket4.Reversed = True
doc.recompute()

mirrored2 = body.newObject("PartDesign::Mirrored", "Mirrored001")
mirrored2.Originals = [pocket4]
mirrored2.MirrorPlane = (doc.getObject("XY_Plane"), [""])
body.Tip = mirrored2

doc.recompute()
